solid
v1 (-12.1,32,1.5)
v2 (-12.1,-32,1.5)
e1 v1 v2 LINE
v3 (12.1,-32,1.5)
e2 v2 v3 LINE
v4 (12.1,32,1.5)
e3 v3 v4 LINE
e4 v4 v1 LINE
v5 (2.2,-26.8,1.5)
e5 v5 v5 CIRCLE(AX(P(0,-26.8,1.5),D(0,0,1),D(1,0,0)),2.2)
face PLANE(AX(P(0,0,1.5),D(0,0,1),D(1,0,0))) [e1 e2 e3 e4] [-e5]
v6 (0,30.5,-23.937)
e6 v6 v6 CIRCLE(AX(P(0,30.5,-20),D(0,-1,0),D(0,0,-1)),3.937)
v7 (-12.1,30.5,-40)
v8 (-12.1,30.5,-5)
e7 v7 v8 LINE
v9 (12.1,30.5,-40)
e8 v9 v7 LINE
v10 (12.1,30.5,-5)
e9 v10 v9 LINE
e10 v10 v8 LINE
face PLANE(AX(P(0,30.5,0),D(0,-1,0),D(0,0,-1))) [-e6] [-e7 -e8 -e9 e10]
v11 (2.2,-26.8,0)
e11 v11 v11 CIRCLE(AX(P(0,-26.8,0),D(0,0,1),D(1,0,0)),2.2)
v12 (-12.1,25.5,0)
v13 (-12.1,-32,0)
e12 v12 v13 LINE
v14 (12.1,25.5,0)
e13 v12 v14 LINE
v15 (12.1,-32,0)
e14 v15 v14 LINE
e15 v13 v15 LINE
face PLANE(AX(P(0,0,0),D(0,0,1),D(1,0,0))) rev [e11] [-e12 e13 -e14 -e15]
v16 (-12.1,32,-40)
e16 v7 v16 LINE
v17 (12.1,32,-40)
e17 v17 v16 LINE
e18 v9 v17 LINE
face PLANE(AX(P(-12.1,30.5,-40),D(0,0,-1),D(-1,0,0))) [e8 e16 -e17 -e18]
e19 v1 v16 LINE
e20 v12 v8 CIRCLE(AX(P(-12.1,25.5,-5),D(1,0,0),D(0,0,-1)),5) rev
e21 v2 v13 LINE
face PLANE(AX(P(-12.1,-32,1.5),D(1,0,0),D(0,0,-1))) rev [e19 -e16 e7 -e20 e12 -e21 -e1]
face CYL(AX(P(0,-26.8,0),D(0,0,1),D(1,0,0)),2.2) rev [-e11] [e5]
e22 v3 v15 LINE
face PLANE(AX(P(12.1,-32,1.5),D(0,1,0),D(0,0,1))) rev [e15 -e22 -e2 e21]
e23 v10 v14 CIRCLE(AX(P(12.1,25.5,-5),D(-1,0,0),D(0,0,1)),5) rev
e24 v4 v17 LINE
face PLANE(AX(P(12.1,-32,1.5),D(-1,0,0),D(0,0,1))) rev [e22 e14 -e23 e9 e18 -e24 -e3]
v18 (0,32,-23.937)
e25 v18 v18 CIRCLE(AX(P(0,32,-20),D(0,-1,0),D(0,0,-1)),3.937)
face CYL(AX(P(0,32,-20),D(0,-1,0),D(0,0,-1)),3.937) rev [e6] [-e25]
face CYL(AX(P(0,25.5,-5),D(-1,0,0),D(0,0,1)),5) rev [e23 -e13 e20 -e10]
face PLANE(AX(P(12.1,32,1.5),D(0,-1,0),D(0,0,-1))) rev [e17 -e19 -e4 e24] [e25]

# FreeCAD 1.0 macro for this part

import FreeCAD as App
import Part
import Sketcher

V = App.Vector
Q = App.Units.Quantity


def edges_at(feature, points):
    """Names of the edges that pass closest to the given points."""
    edges = feature.Shape.Edges
    near = lambda p: min(range(len(edges)), key=lambda i: edges[i].distToShape(Part.Vertex(*p))[0])
    return sorted({f"Edge{near(p) + 1}" for p in points})


def add_polygon(sketch, points):
    """Adds a closed chain of lines whose ends are joined by coincident constraints."""
    first, n = sketch.GeometryCount, len(points)
    for a, b in zip(points, points[1:] + points[:1]):
        sketch.addGeometry(Part.LineSegment(App.Vector(*a, 0), App.Vector(*b, 0)), False)
    for i in range(n):
        sketch.addConstraint(Sketcher.Constraint("Coincident", first + i, 2, first + (i + 1) % n, 1))

doc = App.newDocument("Part")
body = doc.addObject("PartDesign::Body", "Body")

# Sketch on XY plane
sketch1 = body.newObject("Sketcher::SketchObject", "Sketch")
sketch1.AttachmentSupport = (doc.getObject("XY_Plane"), [""])
sketch1.MapMode = "FlatFace"
add_polygon(sketch1, [(-12, 32), (-12, -32), (12, -32), (12, 32)])  # lines 0-3
sketch1.addConstraint(Sketcher.Constraint("Vertical", 0))
sketch1.addConstraint(Sketcher.Constraint("Horizontal", 1))
sketch1.addConstraint(Sketcher.Constraint("Vertical", 2))
sketch1.addConstraint(Sketcher.Constraint("Horizontal", 3))
sketch1.addConstraint(Sketcher.Constraint("Symmetric", 0, 2, 2, 2, -1, 1))
sketch1.addConstraint(Sketcher.Constraint("DistanceY", 0, 2, 0, 1, Q("64 mm")))
sketch1.addConstraint(Sketcher.Constraint("DistanceX", 1, 1, 1, 2, Q("24.2 mm")))
pad1 = body.newObject("PartDesign::Pad", "Pad")
pad1.Profile = sketch1
pad1.Length = 1.5

# Sketch on XY plane
sketch2 = body.newObject("Sketcher::SketchObject", "Sketch001")
sketch2.AttachmentSupport = (doc.getObject("XY_Plane"), [""])
sketch2.MapMode = "FlatFace"
sketch2.AttachmentOffset = App.Placement(V(0, 0, 1.5), App.Rotation())
sketch2.addGeometry(Part.Circle(V(0, -26.8, 0), V(0, 0, 1), 2.2), False)
sketch2.addConstraint(Sketcher.Constraint("PointOnObject", 0, 3, -2))
sketch2.addConstraint(Sketcher.Constraint("Diameter", 0, Q("4.4 mm")))
sketch2.addConstraint(Sketcher.Constraint("DistanceY", 0, 3, -1, 1, Q("26.8 mm")))
pocket1 = body.newObject("PartDesign::Pocket", "Pocket")
pocket1.Profile = sketch2
pocket1.Type = "ThroughAll"

# Sketch on XZ plane
sketch3 = body.newObject("Sketcher::SketchObject", "Sketch002")
sketch3.AttachmentSupport = (doc.getObject("XZ_Plane"), [""])
sketch3.MapMode = "FlatFace"
sketch3.AttachmentOffset = App.Placement(V(0, 0, -32), App.Rotation())
add_polygon(sketch3, [(-12, -40), (-12, 0), (12, 0), (12, -40)])  # lines 0-3
sketch3.addConstraint(Sketcher.Constraint("Vertical", 0))
sketch3.addConstraint(Sketcher.Constraint("Horizontal", 1))
sketch3.addConstraint(Sketcher.Constraint("Vertical", 2))
sketch3.addConstraint(Sketcher.Constraint("Horizontal", 3))
sketch3.addConstraint(Sketcher.Constraint("Symmetric", 0, 2, 1, 2, -1, 1))
sketch3.addConstraint(Sketcher.Constraint("DistanceY", 0, 1, 0, 2, Q("40 mm")))
sketch3.addConstraint(Sketcher.Constraint("DistanceX", 1, 1, 1, 2, Q("24.2 mm")))
pad2 = body.newObject("PartDesign::Pad", "Pad001")
pad2.Profile = sketch3
pad2.Length = 1.5

# Sketch on XZ plane
sketch4 = body.newObject("Sketcher::SketchObject", "Sketch003")
sketch4.AttachmentSupport = (doc.getObject("XZ_Plane"), [""])
sketch4.MapMode = "FlatFace"
sketch4.AttachmentOffset = App.Placement(V(0, 0, -30.5), App.Rotation())
sketch4.addGeometry(Part.Circle(V(0, -20, 0), V(0, 0, 1), 3.9), False)
sketch4.addConstraint(Sketcher.Constraint("PointOnObject", 0, 3, -2))
sketch4.addConstraint(Sketcher.Constraint("Diameter", 0, Q("7.874 mm")))
sketch4.addConstraint(Sketcher.Constraint("DistanceY", 0, 3, -1, 1, Q("20 mm")))
pocket2 = body.newObject("PartDesign::Pocket", "Pocket001")
pocket2.Profile = sketch4
pocket2.Type = "ThroughAll"
doc.recompute()

fillet = body.newObject("PartDesign::Fillet", "Fillet")
fillet.Base = (pocket2, edges_at(pocket2, [(0, 30.5, 0)]))
fillet.Radius = 5

doc.recompute()
